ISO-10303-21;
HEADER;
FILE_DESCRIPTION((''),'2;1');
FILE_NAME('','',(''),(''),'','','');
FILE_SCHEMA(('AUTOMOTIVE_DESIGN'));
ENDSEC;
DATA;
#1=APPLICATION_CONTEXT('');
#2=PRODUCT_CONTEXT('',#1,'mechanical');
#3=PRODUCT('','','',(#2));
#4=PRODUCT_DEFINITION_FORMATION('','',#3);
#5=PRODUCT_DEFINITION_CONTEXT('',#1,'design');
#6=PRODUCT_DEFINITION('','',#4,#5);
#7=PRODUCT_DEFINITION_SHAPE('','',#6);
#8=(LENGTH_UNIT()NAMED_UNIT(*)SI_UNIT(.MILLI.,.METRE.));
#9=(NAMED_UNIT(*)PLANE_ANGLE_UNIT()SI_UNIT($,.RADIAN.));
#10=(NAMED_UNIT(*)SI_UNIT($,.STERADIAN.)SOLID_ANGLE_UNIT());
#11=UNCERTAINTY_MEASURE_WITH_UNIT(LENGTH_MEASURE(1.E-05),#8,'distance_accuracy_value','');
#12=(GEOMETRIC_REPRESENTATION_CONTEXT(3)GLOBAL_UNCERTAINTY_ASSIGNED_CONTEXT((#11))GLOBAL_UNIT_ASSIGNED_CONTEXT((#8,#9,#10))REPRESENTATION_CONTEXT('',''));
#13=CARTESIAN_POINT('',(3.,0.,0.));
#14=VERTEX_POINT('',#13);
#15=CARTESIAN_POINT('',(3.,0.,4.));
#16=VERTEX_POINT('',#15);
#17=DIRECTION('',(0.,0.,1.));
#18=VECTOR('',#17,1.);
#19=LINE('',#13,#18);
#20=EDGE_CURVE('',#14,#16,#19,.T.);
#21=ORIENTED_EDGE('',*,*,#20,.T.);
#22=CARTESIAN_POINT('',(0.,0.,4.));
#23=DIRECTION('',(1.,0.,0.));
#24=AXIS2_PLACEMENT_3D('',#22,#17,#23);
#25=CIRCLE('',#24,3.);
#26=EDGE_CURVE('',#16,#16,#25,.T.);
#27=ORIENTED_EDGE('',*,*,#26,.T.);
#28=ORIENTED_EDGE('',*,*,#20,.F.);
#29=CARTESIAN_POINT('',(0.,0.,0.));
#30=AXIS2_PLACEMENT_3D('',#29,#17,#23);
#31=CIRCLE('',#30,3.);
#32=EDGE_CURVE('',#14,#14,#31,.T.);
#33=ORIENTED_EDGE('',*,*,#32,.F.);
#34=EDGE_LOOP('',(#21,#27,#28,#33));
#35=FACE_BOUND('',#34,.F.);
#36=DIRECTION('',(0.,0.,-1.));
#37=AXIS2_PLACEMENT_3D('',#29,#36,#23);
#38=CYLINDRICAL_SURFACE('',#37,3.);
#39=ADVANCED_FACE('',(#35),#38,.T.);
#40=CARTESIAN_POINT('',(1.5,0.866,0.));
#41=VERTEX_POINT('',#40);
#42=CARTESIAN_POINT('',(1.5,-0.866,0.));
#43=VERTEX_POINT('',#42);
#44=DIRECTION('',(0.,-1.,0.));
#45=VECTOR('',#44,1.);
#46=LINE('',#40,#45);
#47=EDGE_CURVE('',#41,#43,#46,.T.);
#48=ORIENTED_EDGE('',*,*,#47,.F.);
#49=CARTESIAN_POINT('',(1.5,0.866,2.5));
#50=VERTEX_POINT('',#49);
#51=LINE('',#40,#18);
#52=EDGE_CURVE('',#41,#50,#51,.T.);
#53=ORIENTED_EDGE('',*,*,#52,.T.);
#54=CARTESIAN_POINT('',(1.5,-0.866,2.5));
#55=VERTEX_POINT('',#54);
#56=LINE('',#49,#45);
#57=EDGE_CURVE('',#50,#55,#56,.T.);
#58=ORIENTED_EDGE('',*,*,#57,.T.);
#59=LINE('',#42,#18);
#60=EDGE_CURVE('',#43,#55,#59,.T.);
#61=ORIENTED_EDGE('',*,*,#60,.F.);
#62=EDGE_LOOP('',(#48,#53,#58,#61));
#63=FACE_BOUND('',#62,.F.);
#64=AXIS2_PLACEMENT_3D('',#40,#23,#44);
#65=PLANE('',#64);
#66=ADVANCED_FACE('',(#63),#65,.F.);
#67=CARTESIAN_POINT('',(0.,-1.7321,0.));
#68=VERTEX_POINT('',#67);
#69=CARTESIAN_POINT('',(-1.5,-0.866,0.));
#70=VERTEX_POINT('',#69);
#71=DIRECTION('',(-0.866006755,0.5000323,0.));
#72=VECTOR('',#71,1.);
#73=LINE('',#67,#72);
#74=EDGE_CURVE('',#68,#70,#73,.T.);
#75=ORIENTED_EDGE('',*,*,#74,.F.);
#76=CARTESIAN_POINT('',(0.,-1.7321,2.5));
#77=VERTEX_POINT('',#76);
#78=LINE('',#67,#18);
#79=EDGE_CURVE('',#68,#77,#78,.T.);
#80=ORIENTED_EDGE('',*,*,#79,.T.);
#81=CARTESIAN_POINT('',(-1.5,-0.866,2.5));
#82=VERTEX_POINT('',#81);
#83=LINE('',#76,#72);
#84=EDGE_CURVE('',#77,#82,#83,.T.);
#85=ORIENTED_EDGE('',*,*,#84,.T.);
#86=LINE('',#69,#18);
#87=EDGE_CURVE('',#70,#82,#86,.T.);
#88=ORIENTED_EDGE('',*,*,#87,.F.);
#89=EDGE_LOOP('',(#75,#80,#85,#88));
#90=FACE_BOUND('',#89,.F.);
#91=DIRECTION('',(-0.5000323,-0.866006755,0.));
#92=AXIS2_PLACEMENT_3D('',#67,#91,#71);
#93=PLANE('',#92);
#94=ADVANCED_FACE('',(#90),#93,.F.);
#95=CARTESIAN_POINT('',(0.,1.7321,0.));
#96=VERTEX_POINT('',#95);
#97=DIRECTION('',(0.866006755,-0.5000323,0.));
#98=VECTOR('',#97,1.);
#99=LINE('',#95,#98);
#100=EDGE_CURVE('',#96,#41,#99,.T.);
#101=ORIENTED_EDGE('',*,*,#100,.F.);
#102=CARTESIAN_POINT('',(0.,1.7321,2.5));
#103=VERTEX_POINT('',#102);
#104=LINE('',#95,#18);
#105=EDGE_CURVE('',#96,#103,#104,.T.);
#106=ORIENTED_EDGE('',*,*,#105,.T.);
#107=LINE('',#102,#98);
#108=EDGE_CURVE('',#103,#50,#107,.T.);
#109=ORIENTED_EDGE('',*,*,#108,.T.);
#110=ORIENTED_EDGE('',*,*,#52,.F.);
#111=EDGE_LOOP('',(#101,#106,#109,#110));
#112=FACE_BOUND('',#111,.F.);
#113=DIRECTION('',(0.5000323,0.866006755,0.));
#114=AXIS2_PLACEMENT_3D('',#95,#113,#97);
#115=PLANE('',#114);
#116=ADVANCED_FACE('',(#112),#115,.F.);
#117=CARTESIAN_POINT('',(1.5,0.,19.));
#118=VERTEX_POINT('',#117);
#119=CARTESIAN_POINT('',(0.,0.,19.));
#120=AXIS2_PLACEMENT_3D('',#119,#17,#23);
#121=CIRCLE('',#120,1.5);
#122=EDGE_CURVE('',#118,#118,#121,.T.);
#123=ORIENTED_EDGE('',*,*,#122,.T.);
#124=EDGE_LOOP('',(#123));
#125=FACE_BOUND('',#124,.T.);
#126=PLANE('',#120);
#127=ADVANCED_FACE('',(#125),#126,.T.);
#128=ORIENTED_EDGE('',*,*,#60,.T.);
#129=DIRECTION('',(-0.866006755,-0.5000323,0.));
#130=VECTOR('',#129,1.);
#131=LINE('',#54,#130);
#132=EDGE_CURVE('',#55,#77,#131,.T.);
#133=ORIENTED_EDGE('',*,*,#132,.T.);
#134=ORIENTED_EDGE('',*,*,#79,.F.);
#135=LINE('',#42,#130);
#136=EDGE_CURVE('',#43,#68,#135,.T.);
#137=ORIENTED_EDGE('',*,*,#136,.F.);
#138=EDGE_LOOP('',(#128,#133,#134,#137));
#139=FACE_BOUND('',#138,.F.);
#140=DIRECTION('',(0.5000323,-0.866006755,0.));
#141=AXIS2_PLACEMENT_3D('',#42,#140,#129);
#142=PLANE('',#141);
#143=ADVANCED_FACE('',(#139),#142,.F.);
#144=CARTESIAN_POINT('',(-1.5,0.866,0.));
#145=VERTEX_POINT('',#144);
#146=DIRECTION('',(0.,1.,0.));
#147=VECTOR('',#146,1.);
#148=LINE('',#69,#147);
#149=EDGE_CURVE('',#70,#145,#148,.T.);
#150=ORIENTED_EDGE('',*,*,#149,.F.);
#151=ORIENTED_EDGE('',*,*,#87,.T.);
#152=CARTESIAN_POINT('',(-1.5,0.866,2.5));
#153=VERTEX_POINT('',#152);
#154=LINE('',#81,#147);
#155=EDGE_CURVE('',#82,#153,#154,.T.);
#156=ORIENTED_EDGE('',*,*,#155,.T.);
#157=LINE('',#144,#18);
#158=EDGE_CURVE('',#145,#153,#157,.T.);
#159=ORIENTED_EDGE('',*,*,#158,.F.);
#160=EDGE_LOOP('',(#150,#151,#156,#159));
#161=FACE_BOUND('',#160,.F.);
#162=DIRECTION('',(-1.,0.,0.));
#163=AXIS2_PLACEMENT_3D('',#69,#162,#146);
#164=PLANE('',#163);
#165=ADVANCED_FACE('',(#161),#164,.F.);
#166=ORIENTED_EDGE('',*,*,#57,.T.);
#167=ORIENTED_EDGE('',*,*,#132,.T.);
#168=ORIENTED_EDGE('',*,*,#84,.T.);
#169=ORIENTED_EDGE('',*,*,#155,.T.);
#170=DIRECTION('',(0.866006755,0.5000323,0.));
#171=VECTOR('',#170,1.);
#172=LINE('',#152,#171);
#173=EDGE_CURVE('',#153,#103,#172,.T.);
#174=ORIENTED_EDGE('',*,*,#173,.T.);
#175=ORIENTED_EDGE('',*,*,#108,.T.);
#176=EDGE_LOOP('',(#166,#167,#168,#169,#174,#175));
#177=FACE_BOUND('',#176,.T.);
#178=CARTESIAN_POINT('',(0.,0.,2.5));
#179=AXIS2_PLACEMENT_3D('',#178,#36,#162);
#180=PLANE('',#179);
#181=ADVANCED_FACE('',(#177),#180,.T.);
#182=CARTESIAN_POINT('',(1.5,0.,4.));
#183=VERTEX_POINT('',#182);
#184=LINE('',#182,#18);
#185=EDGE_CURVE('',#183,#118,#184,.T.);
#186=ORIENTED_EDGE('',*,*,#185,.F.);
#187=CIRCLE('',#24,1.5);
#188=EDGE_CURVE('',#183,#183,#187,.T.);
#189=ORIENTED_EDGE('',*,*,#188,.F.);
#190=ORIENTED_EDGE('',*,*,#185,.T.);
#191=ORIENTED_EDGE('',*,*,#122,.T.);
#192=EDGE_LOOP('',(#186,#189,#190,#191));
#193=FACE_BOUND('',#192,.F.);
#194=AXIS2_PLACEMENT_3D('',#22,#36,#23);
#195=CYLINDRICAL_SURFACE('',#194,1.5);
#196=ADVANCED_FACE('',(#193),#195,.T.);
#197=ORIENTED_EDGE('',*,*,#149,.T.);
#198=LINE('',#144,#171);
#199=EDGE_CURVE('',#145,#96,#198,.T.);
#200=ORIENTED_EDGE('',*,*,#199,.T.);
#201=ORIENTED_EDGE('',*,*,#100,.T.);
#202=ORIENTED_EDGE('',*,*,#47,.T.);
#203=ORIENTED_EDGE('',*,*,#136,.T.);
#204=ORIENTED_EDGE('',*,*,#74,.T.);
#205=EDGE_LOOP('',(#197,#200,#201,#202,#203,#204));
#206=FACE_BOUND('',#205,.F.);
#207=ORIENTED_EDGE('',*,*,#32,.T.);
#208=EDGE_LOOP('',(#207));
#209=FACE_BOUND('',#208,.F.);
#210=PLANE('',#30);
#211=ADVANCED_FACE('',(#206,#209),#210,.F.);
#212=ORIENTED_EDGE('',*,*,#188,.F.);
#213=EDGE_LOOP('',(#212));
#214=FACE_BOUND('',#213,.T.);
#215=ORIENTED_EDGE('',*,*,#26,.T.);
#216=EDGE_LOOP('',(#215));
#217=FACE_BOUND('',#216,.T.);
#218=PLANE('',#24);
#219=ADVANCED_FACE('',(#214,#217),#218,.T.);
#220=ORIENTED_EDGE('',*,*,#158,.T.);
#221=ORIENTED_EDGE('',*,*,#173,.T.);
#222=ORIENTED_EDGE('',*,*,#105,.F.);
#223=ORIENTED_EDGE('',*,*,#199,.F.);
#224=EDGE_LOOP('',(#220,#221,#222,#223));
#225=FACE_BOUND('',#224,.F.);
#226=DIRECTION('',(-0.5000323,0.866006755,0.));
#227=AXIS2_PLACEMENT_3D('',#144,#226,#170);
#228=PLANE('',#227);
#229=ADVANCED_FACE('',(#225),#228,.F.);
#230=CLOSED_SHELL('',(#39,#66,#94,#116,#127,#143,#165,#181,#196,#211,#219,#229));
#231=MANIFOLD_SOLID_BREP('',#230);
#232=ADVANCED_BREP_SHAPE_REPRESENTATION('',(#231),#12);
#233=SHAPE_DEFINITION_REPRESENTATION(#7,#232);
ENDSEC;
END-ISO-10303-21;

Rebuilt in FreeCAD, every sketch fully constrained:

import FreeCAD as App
import Part
import Sketcher
from FreeCAD import Vector
Q = App.Units.Quantity


def add_polygon(sketch, points):
    """Adds a closed chain of lines whose ends are joined by coincident constraints."""
    first, n = sketch.GeometryCount, len(points)
    for a, b in zip(points, points[1:] + points[:1]):
        sketch.addGeometry(Part.LineSegment(App.Vector(*a, 0), App.Vector(*b, 0)), False)
    for i in range(n):
        sketch.addConstraint(Sketcher.Constraint("Coincident", first + i, 2, first + (i + 1) % n, 1))

doc = App.newDocument("Part")
params = doc.addObject("Spreadsheet::Sheet", "Params")
for row, (alias, value) in enumerate([
    ("sketch1_diameter", "6 mm"),
    ("pad1_length", "4 mm"),
    ("sketch2_diameter", "3 mm"),
    ("pad2_length", "15 mm"),
    ("pocket1_length", "2.5 mm"),
], start=1):
    params.set(f"A{row}", alias)
    params.set(f"B{row}", "=" + value)
    params.setAlias(f"B{row}", alias)

body = doc.addObject("PartDesign::Body", "Body")

# Sketch on XY plane
sketch1 = doc.addObject("Sketcher::SketchObject", "Sketch")
body.addObject(sketch1)
sketch1.AttachmentSupport = (doc.XY_Plane, [""])
sketch1.MapMode = "FlatFace"
sketch1.addGeometry(Part.Circle(Vector(0, 0, 0), Vector(0, 0, 1), 3), False)
sketch1.addConstraint([
    Sketcher.Constraint("Coincident", 0, 3, -1, 1),
    Sketcher.Constraint("Diameter", 0, Q("6 mm")),
])
sketch1.setExpression("Constraints[1]", "Params.sketch1_diameter")
pad1 = doc.addObject("PartDesign::Pad", "Pad")
body.addObject(pad1)
pad1.Profile = sketch1
pad1.setExpression("Length", "Params.pad1_length")

# Sketch on XY plane
sketch2 = doc.addObject("Sketcher::SketchObject", "Sketch001")
body.addObject(sketch2)
sketch2.AttachmentSupport = (doc.XY_Plane, [""])
sketch2.MapMode = "FlatFace"
sketch2.AttachmentOffset = App.Placement(Vector(0, 0, 4), App.Rotation())
sketch2.addGeometry(Part.Circle(Vector(0, 0, 0), Vector(0, 0, 1), 1.5), False)
sketch2.addConstraint([
    Sketcher.Constraint("Coincident", 0, 3, -1, 1),
    Sketcher.Constraint("Diameter", 0, Q("3 mm")),
])
sketch2.setExpression("Constraints[1]", "Params.sketch2_diameter")
pad2 = doc.addObject("PartDesign::Pad", "Pad001")
body.addObject(pad2)
pad2.Profile = sketch2
pad2.setExpression("Length", "Params.pad2_length")

# Sketch on XY plane
sketch3 = doc.addObject("Sketcher::SketchObject", "Sketch002")
body.addObject(sketch3)
sketch3.AttachmentSupport = (doc.XY_Plane, [""])
sketch3.MapMode = "FlatFace"
add_polygon(sketch3, [(1.5, 0.866), (1.5, -0.866), (0, -1.7321), (-1.5, -0.866), (-1.5, 0.866), (0, 1.7321)])  # lines 0-5
sketch3.addConstraint([
    Sketcher.Constraint("Vertical", 0),
    Sketcher.Constraint("Vertical", 3),
    Sketcher.Constraint("Symmetric", 0, 2, 3, 2, -1, 1),
    Sketcher.Constraint("Symmetric", 1, 2, 4, 2, -1, 1),
    Sketcher.Constraint("PointOnObject", 1, 2, -2),
    Sketcher.Constraint("Parallel", 2, 5),
    Sketcher.Constraint("Horizontal", 0, 2, 2, 2),
    Sketcher.Constraint("DistanceX", -1, 1, 0, 2, Q("1.5 mm")),
    Sketcher.Constraint("DistanceY", 0, 2, 0, 1, Q("1.732 mm")),
    Sketcher.Constraint("Distance", 1, Q("1.732 mm")),
])
pocket1 = doc.addObject("PartDesign::Pocket", "Pocket")
body.addObject(pocket1)
pocket1.Profile = sketch3
pocket1.setExpression("Length", "Params.pocket1_length")
pocket1.Reversed = True

doc.recompute()
